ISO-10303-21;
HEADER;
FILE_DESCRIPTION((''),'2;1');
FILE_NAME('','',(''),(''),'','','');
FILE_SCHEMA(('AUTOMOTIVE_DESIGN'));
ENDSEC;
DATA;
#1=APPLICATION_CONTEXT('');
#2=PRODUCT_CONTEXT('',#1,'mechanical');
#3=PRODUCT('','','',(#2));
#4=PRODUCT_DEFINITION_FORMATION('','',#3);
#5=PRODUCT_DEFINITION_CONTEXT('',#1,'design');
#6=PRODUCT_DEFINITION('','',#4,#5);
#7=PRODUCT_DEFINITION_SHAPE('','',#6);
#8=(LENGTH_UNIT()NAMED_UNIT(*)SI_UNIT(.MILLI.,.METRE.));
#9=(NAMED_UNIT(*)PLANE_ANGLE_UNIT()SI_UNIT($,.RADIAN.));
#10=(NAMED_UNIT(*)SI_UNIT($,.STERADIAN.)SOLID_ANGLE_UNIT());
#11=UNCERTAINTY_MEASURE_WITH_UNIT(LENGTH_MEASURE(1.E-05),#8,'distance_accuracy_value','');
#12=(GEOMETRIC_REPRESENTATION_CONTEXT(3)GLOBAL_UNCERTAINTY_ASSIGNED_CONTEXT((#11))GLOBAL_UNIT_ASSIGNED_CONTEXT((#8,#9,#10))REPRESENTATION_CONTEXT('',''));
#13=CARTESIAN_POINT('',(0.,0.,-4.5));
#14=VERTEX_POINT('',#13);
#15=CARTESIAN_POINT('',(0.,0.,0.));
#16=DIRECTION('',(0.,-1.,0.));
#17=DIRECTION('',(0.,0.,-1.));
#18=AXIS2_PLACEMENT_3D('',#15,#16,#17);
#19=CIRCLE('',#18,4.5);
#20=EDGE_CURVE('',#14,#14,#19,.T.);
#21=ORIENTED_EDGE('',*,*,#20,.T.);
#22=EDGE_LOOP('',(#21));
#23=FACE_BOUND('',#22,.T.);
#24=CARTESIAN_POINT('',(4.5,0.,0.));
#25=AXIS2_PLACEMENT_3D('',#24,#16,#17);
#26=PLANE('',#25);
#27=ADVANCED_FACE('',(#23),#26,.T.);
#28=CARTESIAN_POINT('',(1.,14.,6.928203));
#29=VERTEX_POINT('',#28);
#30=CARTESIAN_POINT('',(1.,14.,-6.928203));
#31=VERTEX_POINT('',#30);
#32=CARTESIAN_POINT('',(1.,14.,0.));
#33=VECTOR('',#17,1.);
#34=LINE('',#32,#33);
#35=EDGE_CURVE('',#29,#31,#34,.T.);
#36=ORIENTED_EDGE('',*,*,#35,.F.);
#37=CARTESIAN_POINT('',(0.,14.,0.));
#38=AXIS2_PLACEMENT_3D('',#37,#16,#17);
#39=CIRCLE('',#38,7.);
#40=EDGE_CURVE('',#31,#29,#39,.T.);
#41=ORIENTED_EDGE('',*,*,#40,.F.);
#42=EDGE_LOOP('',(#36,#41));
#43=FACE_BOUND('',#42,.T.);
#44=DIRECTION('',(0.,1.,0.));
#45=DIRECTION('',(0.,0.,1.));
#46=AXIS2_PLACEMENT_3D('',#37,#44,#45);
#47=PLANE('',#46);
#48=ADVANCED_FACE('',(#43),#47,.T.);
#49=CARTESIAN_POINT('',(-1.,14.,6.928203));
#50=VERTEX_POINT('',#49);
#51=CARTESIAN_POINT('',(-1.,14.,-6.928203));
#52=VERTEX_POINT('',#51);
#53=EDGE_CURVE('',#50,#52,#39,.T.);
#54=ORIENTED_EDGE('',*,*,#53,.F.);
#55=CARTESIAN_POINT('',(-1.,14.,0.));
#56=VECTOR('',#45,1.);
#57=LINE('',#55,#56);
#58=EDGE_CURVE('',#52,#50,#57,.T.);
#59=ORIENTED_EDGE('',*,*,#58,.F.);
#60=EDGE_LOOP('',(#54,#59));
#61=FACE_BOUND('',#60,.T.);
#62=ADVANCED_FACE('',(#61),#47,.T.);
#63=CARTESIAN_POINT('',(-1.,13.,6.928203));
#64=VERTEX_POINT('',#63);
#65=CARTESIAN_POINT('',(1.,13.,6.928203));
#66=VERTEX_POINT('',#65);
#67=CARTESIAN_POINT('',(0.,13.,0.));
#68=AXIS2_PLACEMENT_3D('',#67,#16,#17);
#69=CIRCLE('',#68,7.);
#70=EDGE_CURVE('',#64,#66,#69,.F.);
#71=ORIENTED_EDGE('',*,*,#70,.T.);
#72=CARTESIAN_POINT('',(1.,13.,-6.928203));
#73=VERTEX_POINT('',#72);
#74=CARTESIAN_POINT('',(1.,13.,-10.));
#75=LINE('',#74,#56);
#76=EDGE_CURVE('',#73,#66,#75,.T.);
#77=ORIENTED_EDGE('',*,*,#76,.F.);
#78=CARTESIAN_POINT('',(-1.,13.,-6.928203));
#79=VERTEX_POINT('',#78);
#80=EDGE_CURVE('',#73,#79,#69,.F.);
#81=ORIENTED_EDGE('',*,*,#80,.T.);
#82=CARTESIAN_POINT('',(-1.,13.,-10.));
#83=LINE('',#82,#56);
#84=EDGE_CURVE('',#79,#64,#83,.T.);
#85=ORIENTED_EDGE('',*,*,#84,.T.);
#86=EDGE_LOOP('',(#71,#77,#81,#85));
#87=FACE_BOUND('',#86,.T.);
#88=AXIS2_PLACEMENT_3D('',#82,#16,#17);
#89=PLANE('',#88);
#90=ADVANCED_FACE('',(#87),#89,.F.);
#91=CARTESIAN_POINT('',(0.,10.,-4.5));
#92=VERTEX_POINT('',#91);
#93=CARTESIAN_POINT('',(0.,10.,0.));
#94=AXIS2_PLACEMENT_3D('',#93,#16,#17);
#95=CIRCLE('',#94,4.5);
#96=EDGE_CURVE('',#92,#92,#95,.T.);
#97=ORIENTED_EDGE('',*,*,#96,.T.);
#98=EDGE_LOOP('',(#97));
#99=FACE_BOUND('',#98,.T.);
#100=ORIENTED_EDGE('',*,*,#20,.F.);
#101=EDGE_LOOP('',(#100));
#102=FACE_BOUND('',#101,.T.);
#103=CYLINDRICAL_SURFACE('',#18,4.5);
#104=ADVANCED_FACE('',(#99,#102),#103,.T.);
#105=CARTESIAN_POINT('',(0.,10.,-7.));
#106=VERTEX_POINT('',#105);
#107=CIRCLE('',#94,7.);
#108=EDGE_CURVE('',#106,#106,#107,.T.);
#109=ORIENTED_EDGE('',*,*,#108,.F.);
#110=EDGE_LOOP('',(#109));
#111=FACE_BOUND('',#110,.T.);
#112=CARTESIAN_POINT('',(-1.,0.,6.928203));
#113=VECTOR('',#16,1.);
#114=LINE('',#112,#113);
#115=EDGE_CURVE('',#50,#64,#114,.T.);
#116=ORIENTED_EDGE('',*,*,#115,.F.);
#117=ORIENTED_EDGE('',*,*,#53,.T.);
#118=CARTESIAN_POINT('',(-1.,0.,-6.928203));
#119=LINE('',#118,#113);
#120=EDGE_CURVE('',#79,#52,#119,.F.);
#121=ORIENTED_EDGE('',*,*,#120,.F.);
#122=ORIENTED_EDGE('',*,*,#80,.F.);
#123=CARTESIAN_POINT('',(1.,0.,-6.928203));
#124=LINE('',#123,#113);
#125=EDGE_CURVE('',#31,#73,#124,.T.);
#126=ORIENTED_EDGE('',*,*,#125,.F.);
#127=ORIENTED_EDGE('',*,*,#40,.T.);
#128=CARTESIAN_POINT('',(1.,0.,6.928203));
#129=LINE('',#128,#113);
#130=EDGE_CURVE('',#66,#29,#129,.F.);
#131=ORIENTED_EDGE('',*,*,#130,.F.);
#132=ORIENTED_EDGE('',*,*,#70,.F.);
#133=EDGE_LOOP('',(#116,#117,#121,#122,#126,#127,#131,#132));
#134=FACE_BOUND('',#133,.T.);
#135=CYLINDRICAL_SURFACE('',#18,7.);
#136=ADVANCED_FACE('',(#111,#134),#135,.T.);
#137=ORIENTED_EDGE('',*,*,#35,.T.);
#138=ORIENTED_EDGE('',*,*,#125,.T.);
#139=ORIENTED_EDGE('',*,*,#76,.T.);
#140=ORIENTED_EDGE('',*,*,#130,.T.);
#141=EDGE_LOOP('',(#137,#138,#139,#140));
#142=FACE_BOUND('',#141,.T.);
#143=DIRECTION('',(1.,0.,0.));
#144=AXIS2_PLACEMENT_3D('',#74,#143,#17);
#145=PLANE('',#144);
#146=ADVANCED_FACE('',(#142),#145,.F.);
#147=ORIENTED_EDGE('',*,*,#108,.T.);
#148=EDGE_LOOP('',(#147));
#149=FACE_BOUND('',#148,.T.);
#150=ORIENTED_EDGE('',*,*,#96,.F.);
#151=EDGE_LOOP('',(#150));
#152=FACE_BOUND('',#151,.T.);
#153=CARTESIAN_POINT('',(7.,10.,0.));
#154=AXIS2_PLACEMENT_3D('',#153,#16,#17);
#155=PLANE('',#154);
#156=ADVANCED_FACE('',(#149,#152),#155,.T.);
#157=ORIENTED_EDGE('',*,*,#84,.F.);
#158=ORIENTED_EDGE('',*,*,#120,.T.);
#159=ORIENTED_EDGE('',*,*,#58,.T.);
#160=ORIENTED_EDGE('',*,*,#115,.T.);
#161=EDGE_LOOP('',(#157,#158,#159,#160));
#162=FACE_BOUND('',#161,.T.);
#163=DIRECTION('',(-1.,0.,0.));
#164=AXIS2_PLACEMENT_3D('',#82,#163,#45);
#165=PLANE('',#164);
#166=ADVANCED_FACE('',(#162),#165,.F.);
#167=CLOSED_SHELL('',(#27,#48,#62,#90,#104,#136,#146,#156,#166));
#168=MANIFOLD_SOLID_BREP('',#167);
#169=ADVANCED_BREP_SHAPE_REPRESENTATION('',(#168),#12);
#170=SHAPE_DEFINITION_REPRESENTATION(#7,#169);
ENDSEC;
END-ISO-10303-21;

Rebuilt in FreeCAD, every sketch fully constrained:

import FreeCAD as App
import Part
import Sketcher
from FreeCAD import Vector

doc = App.newDocument("Part")
body = doc.addObject("PartDesign::Body", "Body")

sketch1 = body.newObject("Sketcher::SketchObject", "Sketch")
sketch1.AttachmentSupport = (doc.getObject("XY_Plane"), [""])
sketch1.MapMode = "FlatFace"
sketch1.addGeometry(Part.LineSegment(Vector(0, 14, 0), Vector(0, 0, 0)), False)
sketch1.addGeometry(Part.LineSegment(Vector(0, 0, 0), Vector(4.5, 0, 0)), False)
sketch1.addGeometry(Part.LineSegment(Vector(4.5, 0, 0), Vector(4.5, 10, 0)), False)
sketch1.addGeometry(Part.LineSegment(Vector(4.5, 10, 0), Vector(7, 10, 0)), False)
sketch1.addGeometry(Part.LineSegment(Vector(7, 10, 0), Vector(7, 14, 0)), False)
sketch1.addGeometry(Part.LineSegment(Vector(7, 14, 0), Vector(0, 14, 0)), False)
sketch1.addConstraint(Sketcher.Constraint("Coincident", 0, 2, 1, 1))
sketch1.addConstraint(Sketcher.Constraint("Coincident", 1, 2, 2, 1))
sketch1.addConstraint(Sketcher.Constraint("Coincident", 2, 2, 3, 1))
sketch1.addConstraint(Sketcher.Constraint("Coincident", 3, 2, 4, 1))
sketch1.addConstraint(Sketcher.Constraint("Coincident", 4, 2, 5, 1))
sketch1.addConstraint(Sketcher.Constraint("Coincident", 5, 2, 0, 1))
sketch1.addConstraint(Sketcher.Constraint("Vertical", 0))
sketch1.addConstraint(Sketcher.Constraint("Horizontal", 1))
sketch1.addConstraint(Sketcher.Constraint("Vertical", 2))
sketch1.addConstraint(Sketcher.Constraint("Horizontal", 3))
sketch1.addConstraint(Sketcher.Constraint("Vertical", 4))
sketch1.addConstraint(Sketcher.Constraint("Horizontal", 5))
sketch1.addConstraint(Sketcher.Constraint("Coincident", 0, 2, -1, 1))
sketch1.addConstraint(Sketcher.Constraint("DistanceX", 5, 2, 5, 1, 7.0))
sketch1.addConstraint(Sketcher.Constraint("DistanceY", 0, 2, 0, 1, 14.0))
sketch1.addConstraint(Sketcher.Constraint("DistanceY", 2, 1, 2, 2, 10.0))
sketch1.addConstraint(Sketcher.Constraint("DistanceX", 1, 1, 1, 2, 4.5))
revolution = body.newObject("PartDesign::Revolution", "Revolution")
revolution.Profile = sketch1
revolution.ReferenceAxis = (sketch1, ["V_Axis"])
revolution.Angle = 360

sketch2 = body.newObject("Sketcher::SketchObject", "Sketch001")
sketch2.AttachmentSupport = (doc.getObject("XY_Plane"), [""])
sketch2.MapMode = "FlatFace"
sketch2.addGeometry(Part.LineSegment(Vector(-1, 15, 0), Vector(-1, 13, 0)), False)
sketch2.addGeometry(Part.LineSegment(Vector(-1, 13, 0), Vector(1, 13, 0)), False)
sketch2.addGeometry(Part.LineSegment(Vector(1, 13, 0), Vector(1, 15, 0)), False)
sketch2.addGeometry(Part.LineSegment(Vector(1, 15, 0), Vector(-1, 15, 0)), False)
sketch2.addConstraint(Sketcher.Constraint("Coincident", 0, 2, 1, 1))
sketch2.addConstraint(Sketcher.Constraint("Coincident", 1, 2, 2, 1))
sketch2.addConstraint(Sketcher.Constraint("Coincident", 2, 2, 3, 1))
sketch2.addConstraint(Sketcher.Constraint("Coincident", 3, 2, 0, 1))
sketch2.addConstraint(Sketcher.Constraint("Vertical", 0))
sketch2.addConstraint(Sketcher.Constraint("Horizontal", 1))
sketch2.addConstraint(Sketcher.Constraint("Vertical", 2))
sketch2.addConstraint(Sketcher.Constraint("Horizontal", 3))
sketch2.addConstraint(Sketcher.Constraint("Equal", 3, 0))
sketch2.addConstraint(Sketcher.Constraint("DistanceX", 1, 1, 1, 2, 2.0))
sketch2.addConstraint(Sketcher.Constraint("DistanceX", 0, 2, -1, 1, 1.0))
sketch2.addConstraint(Sketcher.Constraint("DistanceY", -1, 1, 0, 2, 13.0))
pocket1 = body.newObject("PartDesign::Pocket", "Pocket")
pocket1.Profile = sketch2
pocket1.Length = 20
pocket1.Midplane = True

doc.recompute()
